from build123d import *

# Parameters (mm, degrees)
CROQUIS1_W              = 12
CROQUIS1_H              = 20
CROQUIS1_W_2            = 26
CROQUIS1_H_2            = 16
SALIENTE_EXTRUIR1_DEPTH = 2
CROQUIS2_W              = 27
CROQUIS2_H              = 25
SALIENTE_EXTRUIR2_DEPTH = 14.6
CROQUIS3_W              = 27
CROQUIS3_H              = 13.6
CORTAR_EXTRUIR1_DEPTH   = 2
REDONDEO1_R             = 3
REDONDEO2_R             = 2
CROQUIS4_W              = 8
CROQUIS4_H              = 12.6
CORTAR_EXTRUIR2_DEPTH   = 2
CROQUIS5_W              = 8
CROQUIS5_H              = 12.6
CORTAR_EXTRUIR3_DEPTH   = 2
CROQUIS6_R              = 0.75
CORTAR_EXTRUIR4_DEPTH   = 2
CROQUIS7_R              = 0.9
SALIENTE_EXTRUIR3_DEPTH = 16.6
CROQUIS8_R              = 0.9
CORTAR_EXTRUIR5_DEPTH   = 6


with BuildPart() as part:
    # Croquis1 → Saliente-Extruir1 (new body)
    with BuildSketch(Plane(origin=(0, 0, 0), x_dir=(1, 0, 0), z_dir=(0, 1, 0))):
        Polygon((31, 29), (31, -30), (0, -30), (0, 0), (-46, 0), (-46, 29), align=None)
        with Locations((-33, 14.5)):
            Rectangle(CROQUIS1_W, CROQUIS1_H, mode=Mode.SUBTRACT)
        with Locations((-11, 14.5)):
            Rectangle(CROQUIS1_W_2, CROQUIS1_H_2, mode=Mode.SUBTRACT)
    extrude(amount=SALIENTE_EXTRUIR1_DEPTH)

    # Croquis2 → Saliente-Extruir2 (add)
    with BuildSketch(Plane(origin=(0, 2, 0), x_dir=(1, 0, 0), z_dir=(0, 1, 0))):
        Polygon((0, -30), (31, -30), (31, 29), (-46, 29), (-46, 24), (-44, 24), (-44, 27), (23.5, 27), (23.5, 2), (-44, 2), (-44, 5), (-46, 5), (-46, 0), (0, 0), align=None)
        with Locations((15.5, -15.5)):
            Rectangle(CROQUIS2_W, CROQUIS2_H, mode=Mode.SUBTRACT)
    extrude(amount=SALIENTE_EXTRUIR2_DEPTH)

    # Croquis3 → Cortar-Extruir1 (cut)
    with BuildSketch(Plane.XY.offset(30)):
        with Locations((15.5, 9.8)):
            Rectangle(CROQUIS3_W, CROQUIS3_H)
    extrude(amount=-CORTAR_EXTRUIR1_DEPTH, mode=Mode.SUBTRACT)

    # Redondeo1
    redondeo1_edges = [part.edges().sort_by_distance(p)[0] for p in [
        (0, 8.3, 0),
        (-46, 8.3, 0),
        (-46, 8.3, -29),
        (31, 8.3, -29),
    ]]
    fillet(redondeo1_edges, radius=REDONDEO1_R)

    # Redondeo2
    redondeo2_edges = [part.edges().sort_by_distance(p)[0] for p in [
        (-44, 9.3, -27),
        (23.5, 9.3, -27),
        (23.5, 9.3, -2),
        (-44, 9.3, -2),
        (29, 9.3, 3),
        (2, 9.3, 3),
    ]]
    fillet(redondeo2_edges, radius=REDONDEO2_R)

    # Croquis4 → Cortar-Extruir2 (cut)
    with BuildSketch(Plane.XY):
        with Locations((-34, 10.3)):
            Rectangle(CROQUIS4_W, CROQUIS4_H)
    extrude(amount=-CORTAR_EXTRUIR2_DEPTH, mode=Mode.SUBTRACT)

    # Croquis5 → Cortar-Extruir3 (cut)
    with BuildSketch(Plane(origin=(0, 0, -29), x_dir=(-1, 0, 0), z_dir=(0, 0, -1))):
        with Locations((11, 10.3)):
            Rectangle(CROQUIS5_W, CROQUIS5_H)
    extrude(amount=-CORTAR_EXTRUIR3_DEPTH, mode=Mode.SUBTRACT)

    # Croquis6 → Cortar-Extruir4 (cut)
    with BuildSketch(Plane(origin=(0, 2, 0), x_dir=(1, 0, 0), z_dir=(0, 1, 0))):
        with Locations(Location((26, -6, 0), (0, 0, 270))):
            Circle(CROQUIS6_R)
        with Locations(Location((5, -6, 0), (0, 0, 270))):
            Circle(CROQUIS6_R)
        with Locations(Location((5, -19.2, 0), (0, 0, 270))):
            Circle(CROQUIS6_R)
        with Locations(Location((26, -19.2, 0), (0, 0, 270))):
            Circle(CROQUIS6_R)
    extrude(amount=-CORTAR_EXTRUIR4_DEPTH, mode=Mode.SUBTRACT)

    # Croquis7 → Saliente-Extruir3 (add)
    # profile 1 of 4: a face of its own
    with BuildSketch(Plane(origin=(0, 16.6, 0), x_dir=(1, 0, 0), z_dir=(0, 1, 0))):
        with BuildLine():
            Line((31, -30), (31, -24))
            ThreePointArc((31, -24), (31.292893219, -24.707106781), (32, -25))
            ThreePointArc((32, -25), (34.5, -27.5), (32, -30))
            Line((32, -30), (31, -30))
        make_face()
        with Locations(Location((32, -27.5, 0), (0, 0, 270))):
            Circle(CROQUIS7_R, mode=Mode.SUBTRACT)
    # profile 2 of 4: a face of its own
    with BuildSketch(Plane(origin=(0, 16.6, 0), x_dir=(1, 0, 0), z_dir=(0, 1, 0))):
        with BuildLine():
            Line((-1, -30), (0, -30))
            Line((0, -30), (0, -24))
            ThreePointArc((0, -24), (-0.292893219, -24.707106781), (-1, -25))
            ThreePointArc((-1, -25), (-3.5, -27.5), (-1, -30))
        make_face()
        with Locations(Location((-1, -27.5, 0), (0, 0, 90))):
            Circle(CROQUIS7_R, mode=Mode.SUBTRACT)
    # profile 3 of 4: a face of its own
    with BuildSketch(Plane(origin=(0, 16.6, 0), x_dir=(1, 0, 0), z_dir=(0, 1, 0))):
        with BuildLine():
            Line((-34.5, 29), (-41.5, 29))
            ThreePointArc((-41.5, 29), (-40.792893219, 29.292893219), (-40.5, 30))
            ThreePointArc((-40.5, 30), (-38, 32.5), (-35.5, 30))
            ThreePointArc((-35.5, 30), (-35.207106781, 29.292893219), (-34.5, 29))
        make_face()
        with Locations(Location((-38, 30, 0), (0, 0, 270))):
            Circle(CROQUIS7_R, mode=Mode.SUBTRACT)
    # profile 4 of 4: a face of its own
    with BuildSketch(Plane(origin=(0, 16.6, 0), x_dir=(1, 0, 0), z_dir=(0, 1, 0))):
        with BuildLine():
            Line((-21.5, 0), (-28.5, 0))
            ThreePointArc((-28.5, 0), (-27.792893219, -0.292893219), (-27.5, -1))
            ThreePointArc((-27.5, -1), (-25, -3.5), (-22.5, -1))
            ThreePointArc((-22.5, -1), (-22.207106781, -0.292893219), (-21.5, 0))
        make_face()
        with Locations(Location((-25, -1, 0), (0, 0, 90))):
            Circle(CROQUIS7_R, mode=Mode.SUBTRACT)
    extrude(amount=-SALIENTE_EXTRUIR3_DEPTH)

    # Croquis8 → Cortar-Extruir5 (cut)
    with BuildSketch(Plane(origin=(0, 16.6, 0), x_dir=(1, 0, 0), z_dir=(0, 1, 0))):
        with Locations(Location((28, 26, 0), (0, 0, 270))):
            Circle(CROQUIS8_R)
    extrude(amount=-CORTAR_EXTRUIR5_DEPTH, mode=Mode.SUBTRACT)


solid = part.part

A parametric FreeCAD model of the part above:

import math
import FreeCAD as App
import Part
import Sketcher
from FreeCAD import Vector
Q = App.Units.Quantity


def edges_at(feature, points):
    """Names of the edges that pass closest to the given points."""
    edges = feature.Shape.Edges
    near = lambda p: min(range(len(edges)), key=lambda i: edges[i].distToShape(Part.Vertex(*p))[0])
    return sorted({f"Edge{near(p) + 1}" for p in points})


def add_polygon(sketch, points):
    """Adds a closed chain of lines whose ends are joined by coincident constraints."""
    first, n = sketch.GeometryCount, len(points)
    for a, b in zip(points, points[1:] + points[:1]):
        sketch.addGeometry(Part.LineSegment(App.Vector(*a, 0), App.Vector(*b, 0)), False)
    for i in range(n):
        sketch.addConstraint(Sketcher.Constraint("Coincident", first + i, 2, first + (i + 1) % n, 1))

doc = App.newDocument("Part")
body = doc.addObject("PartDesign::Body", "Body")

sketch1 = doc.addObject("Sketcher::SketchObject", "Sketch")
body.addObject(sketch1)
sketch1.AttachmentSupport = (doc.XZ_Plane, [""])
sketch1.MapMode = "FlatFace"
add_polygon(sketch1, [(31, 30), (31, -29), (-46, -29), (-46, 0), (0, 0), (0, 30)])
add_polygon(sketch1, [(-24, -6), (-24, -22), (2, -22), (2, -6)])
add_polygon(sketch1, [(-39, -4), (-39, -24), (-27, -24), (-27, -4)])
sketch1.addConstraint([
    Sketcher.Constraint("Vertical", 0),
    Sketcher.Constraint("Horizontal", 1),
    Sketcher.Constraint("Vertical", 2),
    Sketcher.Constraint("Horizontal", 3),
    Sketcher.Constraint("Vertical", 4),
    Sketcher.Constraint("Horizontal", 5),
    Sketcher.Constraint("Vertical", 6),
    Sketcher.Constraint("Horizontal", 7),
    Sketcher.Constraint("Vertical", 8),
    Sketcher.Constraint("Horizontal", 9),
    Sketcher.Constraint("Vertical", 10),
    Sketcher.Constraint("Horizontal", 11),
    Sketcher.Constraint("Vertical", 12),
    Sketcher.Constraint("Horizontal", 13),
    Sketcher.Constraint("Coincident", 3, 2, -1, 1),
    Sketcher.Constraint("DistanceX", 1, 2, 1, 1, Q("77 mm")),
    Sketcher.Constraint("DistanceX", 3, 1, 3, 2, Q("46 mm")),
    Sketcher.Constraint("DistanceX", 7, 1, 7, 2, Q("26 mm")),
    Sketcher.Constraint("DistanceX", 11, 1, 11, 2, Q("12 mm")),
    Sketcher.Constraint("DistanceY", 0, 2, 0, 1, Q("59 mm")),
    Sketcher.Constraint("DistanceY", 2, 1, 2, 2, Q("29 mm")),
    Sketcher.Constraint("DistanceY", 6, 2, 6, 1, Q("16 mm")),
    Sketcher.Constraint("DistanceY", 10, 2, 10, 1, Q("20 mm")),
    Sketcher.Constraint("DistanceX", 6, 2, -1, 1, Q("24 mm")),
    Sketcher.Constraint("DistanceX", 10, 2, -1, 1, Q("39 mm")),
    Sketcher.Constraint("DistanceY", 10, 2, 6, 2, Q("2 mm")),
    Sketcher.Constraint("DistanceY", 6, 2, -1, 1, Q("22.5 mm")),
])
pad1 = doc.addObject("PartDesign::Pad", "Pad")
body.addObject(pad1)
pad1.Profile = sketch1
pad1.Length = 2
pad1.Reversed = True

sketch2 = doc.addObject("Sketcher::SketchObject", "Sketch001")
body.addObject(sketch2)
sketch2.AttachmentSupport = (doc.XZ_Plane, [""])
sketch2.MapMode = "FlatFace"
sketch2.AttachmentOffset = App.Placement(Vector(0, 0, -2), App.Rotation())
add_polygon(sketch2, [(0, 30), (31, 30), (31, -29), (-46, -29), (-46, -24), (-44, -24), (-44, -27), (23.5, -27), (23.5, -2), (-44, -2), (-44, -5), (-46, -5), (-46, 0), (0, 0)])
add_polygon(sketch2, [(29, 28), (2, 28), (2, 3), (29, 3)])
sketch2.addConstraint([
    Sketcher.Constraint("Horizontal", 0),
    Sketcher.Constraint("Vertical", 1),
    Sketcher.Constraint("Horizontal", 2),
    Sketcher.Constraint("Vertical", 3),
    Sketcher.Constraint("Horizontal", 4),
    Sketcher.Constraint("Vertical", 5),
    Sketcher.Constraint("Horizontal", 6),
    Sketcher.Constraint("Vertical", 7),
    Sketcher.Constraint("Horizontal", 8),
    Sketcher.Constraint("Vertical", 9),
    Sketcher.Constraint("Horizontal", 10),
    Sketcher.Constraint("Vertical", 11),
    Sketcher.Constraint("Horizontal", 12),
    Sketcher.Constraint("Vertical", 13),
    Sketcher.Constraint("Horizontal", 14),
    Sketcher.Constraint("Vertical", 15),
    Sketcher.Constraint("Horizontal", 16),
    Sketcher.Constraint("Vertical", 17),
    Sketcher.Constraint("Coincident", 12, 2, -1, 1),
    Sketcher.Constraint("Vertical", 5, 2, 8, 2),
    Sketcher.Constraint("Vertical", 3, 2, 10, 2),
    Sketcher.Constraint("Equal", 5, 9),
    Sketcher.Constraint("Equal", 3, 11),
    Sketcher.Constraint("Equal", 7, 15),
    Sketcher.Constraint("DistanceX", 0, 1, 0, 2, Q("31 mm")),
    Sketcher.Constraint("DistanceX", 2, 2, 2, 1, Q("77 mm")),
    Sketcher.Constraint("DistanceX", 4, 1, 4, 2, Q("2 mm")),
    Sketcher.Constraint("DistanceX", 14, 2, 14, 1, Q("27 mm")),
    Sketcher.Constraint("DistanceY", 1, 2, 1, 1, Q("59 mm")),
    Sketcher.Constraint("DistanceY", 3, 1, 3, 2, Q("5 mm")),
    Sketcher.Constraint("DistanceY", 5, 2, 5, 1, Q("3 mm")),
    Sketcher.Constraint("DistanceY", 7, 1, 7, 2, Q("25 mm")),
    Sketcher.Constraint("DistanceX", 6, 1, 6, 2, Q("67.5 mm")),
    Sketcher.Constraint("DistanceX", -1, 1, 14, 2, Q("2 mm")),
    Sketcher.Constraint("DistanceY", -1, 1, 14, 2, Q("28 mm")),
])
pad2 = doc.addObject("PartDesign::Pad", "Pad001")
body.addObject(pad2)
pad2.Profile = sketch2
pad2.Length = 14.6
pad2.Reversed = True

sketch3 = doc.addObject("Sketcher::SketchObject", "Sketch002")
body.addObject(sketch3)
sketch3.AttachmentSupport = (doc.XY_Plane, [""])
sketch3.MapMode = "FlatFace"
sketch3.AttachmentOffset = App.Placement(Vector(0, 0, 30), App.Rotation())
add_polygon(sketch3, [(2, 17), (2, 3), (29, 3), (29, 17)])
sketch3.addConstraint([
    Sketcher.Constraint("Vertical", 0),
    Sketcher.Constraint("Horizontal", 1),
    Sketcher.Constraint("Vertical", 2),
    Sketcher.Constraint("Horizontal", 3),
    Sketcher.Constraint("DistanceX", 1, 1, 1, 2, Q("27 mm")),
    Sketcher.Constraint("DistanceY", 0, 2, 0, 1, Q("13.6 mm")),
    Sketcher.Constraint("DistanceX", -1, 1, 0, 2, Q("2 mm")),
    Sketcher.Constraint("DistanceY", -1, 1, 0, 2, Q("3 mm")),
])
pocket1 = doc.addObject("PartDesign::Pocket", "Pocket")
body.addObject(pocket1)
pocket1.Profile = sketch3
pocket1.Length = 2
doc.recompute()

fillet = doc.addObject("PartDesign::Fillet", "Fillet")
body.addObject(fillet)
fillet.Base = (pocket1, edges_at(pocket1, [
    (0, 8.3, 0),
    (-46, 8.3, 0),
    (-46, 8.3, -29),
    (31, 8.3, -29),
]))
fillet.Radius = 3
doc.recompute()

fillet2 = doc.addObject("PartDesign::Fillet", "Fillet001")
body.addObject(fillet2)
fillet2.Base = (fillet, edges_at(fillet, [
    (-44, 9.3, -27),
    (23.5, 9.3, -27),
    (23.5, 9.3, -2),
    (-44, 9.3, -2),
    (29, 9.3, 3),
    (2, 9.3, 3),
]))
fillet2.Radius = 2

sketch4 = doc.addObject("Sketcher::SketchObject", "Sketch003")
body.addObject(sketch4)
sketch4.AttachmentSupport = (doc.XY_Plane, [""])
sketch4.MapMode = "FlatFace"
add_polygon(sketch4, [(-38, 17), (-38, 4), (-30, 4), (-30, 17)])
sketch4.addConstraint([
    Sketcher.Constraint("Vertical", 0),
    Sketcher.Constraint("Horizontal", 1),
    Sketcher.Constraint("Vertical", 2),
    Sketcher.Constraint("Horizontal", 3),
    Sketcher.Constraint("DistanceX", 1, 1, 1, 2, Q("8 mm")),
    Sketcher.Constraint("DistanceY", 0, 2, 0, 1, Q("12.6 mm")),
    Sketcher.Constraint("DistanceX", 0, 2, -1, 1, Q("38 mm")),
    Sketcher.Constraint("DistanceY", -1, 1, 0, 2, Q("4 mm")),
])
pocket2 = doc.addObject("PartDesign::Pocket", "Pocket001")
body.addObject(pocket2)
pocket2.Profile = sketch4
pocket2.Length = 2

sketch5 = doc.addObject("Sketcher::SketchObject", "Sketch004")
body.addObject(sketch5)
sketch5.AttachmentSupport = (doc.XY_Plane, [""])
sketch5.MapMode = "FlatFace"
sketch5.AttachmentOffset = App.Placement(Vector(0, 0, -29), App.Rotation())
add_polygon(sketch5, [(-7, 17), (-7, 4), (-15, 4), (-15, 17)])
sketch5.addConstraint([
    Sketcher.Constraint("Vertical", 0),
    Sketcher.Constraint("Horizontal", 1),
    Sketcher.Constraint("Vertical", 2),
    Sketcher.Constraint("Horizontal", 3),
    Sketcher.Constraint("DistanceX", 1, 2, 1, 1, Q("8 mm")),
    Sketcher.Constraint("DistanceY", 0, 2, 0, 1, Q("12.6 mm")),
    Sketcher.Constraint("DistanceX", 0, 2, -1, 1, Q("7 mm")),
    Sketcher.Constraint("DistanceY", -1, 1, 0, 2, Q("4 mm")),
])
pocket3 = doc.addObject("PartDesign::Pocket", "Pocket002")
body.addObject(pocket3)
pocket3.Profile = sketch5
pocket3.Length = 2
pocket3.Reversed = True

sketch6 = doc.addObject("Sketcher::SketchObject", "Sketch005")
body.addObject(sketch6)
sketch6.AttachmentSupport = (doc.XZ_Plane, [""])
sketch6.MapMode = "FlatFace"
sketch6.AttachmentOffset = App.Placement(Vector(0, 0, -2), App.Rotation())
sketch6.addGeometry([
    Part.Circle(Vector(26, 6, 0), Vector(0, 0, 1), 0.8),
    Part.Circle(Vector(5, 6, 0), Vector(0, 0, 1), 0.8),
    Part.Circle(Vector(5, 19.2, 0), Vector(0, 0, 1), 0.8),
    Part.Circle(Vector(26, 19.2, 0), Vector(0, 0, 1), 0.8),
], False)
sketch6.addConstraint([
    Sketcher.Constraint("Equal", 0, 1),
    Sketcher.Constraint("Equal", 1, 2),
    Sketcher.Constraint("Equal", 2, 3),
    Sketcher.Constraint("Horizontal", 0, 3, 1, 3),
    Sketcher.Constraint("Horizontal", 2, 3, 3, 3),
    Sketcher.Constraint("Vertical", 1, 3, 2, 3),
    Sketcher.Constraint("Vertical", 0, 3, 3, 3),
    Sketcher.Constraint("Diameter", 0, Q("1.5 mm")),
    Sketcher.Constraint("DistanceX", -1, 1, 0, 3, Q("26 mm")),
    Sketcher.Constraint("DistanceY", -1, 1, 0, 3, Q("6 mm")),
    Sketcher.Constraint("DistanceX", -1, 1, 1, 3, Q("5 mm")),
    Sketcher.Constraint("DistanceY", -1, 1, 2, 3, Q("19.2 mm")),
])
pocket4 = doc.addObject("PartDesign::Pocket", "Pocket003")
body.addObject(pocket4)
pocket4.Profile = sketch6
pocket4.Length = 2
pocket4.Reversed = True

sketch7 = doc.addObject("Sketcher::SketchObject", "Sketch006")
body.addObject(sketch7)
sketch7.AttachmentSupport = (doc.XZ_Plane, [""])
sketch7.MapMode = "FlatFace"
sketch7.AttachmentOffset = App.Placement(Vector(0, 0, -16.6), App.Rotation())
sketch7.addGeometry([
    Part.LineSegment(Vector(31, 24, 0), Vector(31, 30, 0)),
    Part.LineSegment(Vector(31, 30, 0), Vector(32, 30, 0)),
    Part.ArcOfCircle(Part.Circle(Vector(32, 27.5, 0), Vector(0, 0, 1), 2.5), math.radians(-90), math.radians(90)),
    Part.ArcOfCircle(Part.Circle(Vector(32, 24, 0), Vector(0, 0, 1), 1), math.radians(90), math.radians(180)),
    Part.Circle(Vector(32, 27.5, 0), Vector(0, 0, 1), 0.9),
    Part.LineSegment(Vector(-1, 30, 0), Vector(0, 30, 0)),
    Part.LineSegment(Vector(0, 30, 0), Vector(0, 24, 0)),
    Part.ArcOfCircle(Part.Circle(Vector(-1, 24, 0), Vector(0, 0, 1), 1), math.radians(0), math.radians(90)),
    Part.ArcOfCircle(Part.Circle(Vector(-1, 27.5, 0), Vector(0, 0, 1), 2.5), math.radians(90), math.radians(270)),
    Part.Circle(Vector(-1, 27.5, 0), Vector(0, 0, 1), 0.9),
    Part.LineSegment(Vector(-41.5, -29, 0), Vector(-34.5, -29, 0)),
    Part.ArcOfCircle(Part.Circle(Vector(-34.5, -30, 0), Vector(0, 0, 1), 1), math.radians(90), math.radians(180)),
    Part.ArcOfCircle(Part.Circle(Vector(-38, -30, 0), Vector(0, 0, 1), 2.5), math.radians(180), math.radians(360)),
    Part.ArcOfCircle(Part.Circle(Vector(-41.5, -30, 0), Vector(0, 0, 1), 1), math.radians(0), math.radians(90)),
    Part.Circle(Vector(-38, -30, 0), Vector(0, 0, 1), 0.9),
    Part.LineSegment(Vector(-21.5, 0, 0), Vector(-28.5, 0, 0)),
    Part.ArcOfCircle(Part.Circle(Vector(-28.5, 1, 0), Vector(0, 0, 1), 1), math.radians(-90), math.radians(0)),
    Part.ArcOfCircle(Part.Circle(Vector(-25, 1, 0), Vector(0, 0, 1), 2.5), math.radians(0), math.radians(180)),
    Part.ArcOfCircle(Part.Circle(Vector(-21.5, 1, 0), Vector(0, 0, 1), 1), math.radians(-180), math.radians(-90)),
    Part.Circle(Vector(-25, 1, 0), Vector(0, 0, 1), 0.9),
], False)
sketch7.addConstraint([
    Sketcher.Constraint("Coincident", 0, 2, 1, 1),
    Sketcher.Constraint("Tangent", 1, 2, 2, 2),
    Sketcher.Constraint("Tangent", 2, 1, 3, 1),
    Sketcher.Constraint("Tangent", 3, 2, 0, 1),
    Sketcher.Constraint("Coincident", 5, 2, 6, 1),
    Sketcher.Constraint("Tangent", 6, 2, 7, 1),
    Sketcher.Constraint("Tangent", 7, 2, 8, 2),
    Sketcher.Constraint("Tangent", 8, 1, 5, 1),
    Sketcher.Constraint("Tangent", 10, 2, 11, 1),
    Sketcher.Constraint("Tangent", 11, 2, 12, 2),
    Sketcher.Constraint("Tangent", 12, 1, 13, 1),
    Sketcher.Constraint("Tangent", 13, 2, 10, 1),
    Sketcher.Constraint("Tangent", 15, 2, 16, 1),
    Sketcher.Constraint("Tangent", 16, 2, 17, 2),
    Sketcher.Constraint("Tangent", 17, 1, 18, 1),
    Sketcher.Constraint("Tangent", 18, 2, 15, 1),
    Sketcher.Constraint("Vertical", 0),
    Sketcher.Constraint("Horizontal", 1),
    Sketcher.Constraint("Horizontal", 5),
    Sketcher.Constraint("Vertical", 6),
    Sketcher.Constraint("Horizontal", 10),
    Sketcher.Constraint("Horizontal", 15),
    Sketcher.Constraint("Coincident", 4, 3, 2, 3),
    Sketcher.Constraint("Coincident", 9, 3, 8, 3),
    Sketcher.Constraint("Coincident", 14, 3, 12, 3),
    Sketcher.Constraint("Coincident", 19, 3, 17, 3),
    Sketcher.Constraint("Equal", 3, 7),
    Sketcher.Constraint("Equal", 2, 8),
    Sketcher.Constraint("Equal", 4, 9),
    Sketcher.Constraint("Equal", 7, 11),
    Sketcher.Constraint("Equal", 8, 12),
    Sketcher.Constraint("Equal", 11, 13),
    Sketcher.Constraint("Equal", 9, 14),
    Sketcher.Constraint("Equal", 13, 16),
    Sketcher.Constraint("Equal", 12, 17),
    Sketcher.Constraint("Equal", 16, 18),
    Sketcher.Constraint("Equal", 14, 19),
    Sketcher.Constraint("PointOnObject", 5, 2, -2),
    Sketcher.Constraint("PointOnObject", 15, 2, -1),
    Sketcher.Constraint("Horizontal", 3, 3, 7, 3),
    Sketcher.Constraint("Horizontal", 11, 3, 12, 3),
    Sketcher.Constraint("Horizontal", 16, 3, 17, 3),
    Sketcher.Constraint("Vertical", 2, 3, 3, 3),
    Sketcher.Constraint("Vertical", 7, 3, 8, 3),
    Sketcher.Constraint("Radius", 3, Q("1 mm")),
    Sketcher.Constraint("Diameter", 4, Q("1.8 mm")),
    Sketcher.Constraint("Radius", 2, Q("2.5 mm")),
    Sketcher.Constraint("DistanceX", -1, 1, 2, 3, Q("32 mm")),
    Sketcher.Constraint("DistanceY", -1, 1, 3, 3, Q("24 mm")),
    Sketcher.Constraint("DistanceY", 11, 3, -1, 1, Q("30 mm")),
    Sketcher.Constraint("DistanceX", 12, 3, -1, 1, Q("38 mm")),
    Sketcher.Constraint("DistanceX", 17, 3, -1, 1, Q("25 mm")),
])
pad3 = doc.addObject("PartDesign::Pad", "Pad002")
body.addObject(pad3)
pad3.Profile = sketch7
pad3.Length = 16.6

sketch8 = doc.addObject("Sketcher::SketchObject", "Sketch007")
body.addObject(sketch8)
sketch8.AttachmentSupport = (doc.XZ_Plane, [""])
sketch8.MapMode = "FlatFace"
sketch8.AttachmentOffset = App.Placement(Vector(0, 0, -16.6), App.Rotation())
sketch8.addGeometry(Part.Circle(Vector(28, -26, 0), Vector(0, 0, 1), 0.9), False)
sketch8.addConstraint([
    Sketcher.Constraint("Diameter", 0, Q("1.8 mm")),
    Sketcher.Constraint("DistanceX", -1, 1, 0, 3, Q("28 mm")),
    Sketcher.Constraint("DistanceY", 0, 3, -1, 1, Q("26 mm")),
])
pocket5 = doc.addObject("PartDesign::Pocket", "Pocket004")
body.addObject(pocket5)
pocket5.Profile = sketch8
pocket5.Length = 6
pocket5.Reversed = True

doc.recompute()
